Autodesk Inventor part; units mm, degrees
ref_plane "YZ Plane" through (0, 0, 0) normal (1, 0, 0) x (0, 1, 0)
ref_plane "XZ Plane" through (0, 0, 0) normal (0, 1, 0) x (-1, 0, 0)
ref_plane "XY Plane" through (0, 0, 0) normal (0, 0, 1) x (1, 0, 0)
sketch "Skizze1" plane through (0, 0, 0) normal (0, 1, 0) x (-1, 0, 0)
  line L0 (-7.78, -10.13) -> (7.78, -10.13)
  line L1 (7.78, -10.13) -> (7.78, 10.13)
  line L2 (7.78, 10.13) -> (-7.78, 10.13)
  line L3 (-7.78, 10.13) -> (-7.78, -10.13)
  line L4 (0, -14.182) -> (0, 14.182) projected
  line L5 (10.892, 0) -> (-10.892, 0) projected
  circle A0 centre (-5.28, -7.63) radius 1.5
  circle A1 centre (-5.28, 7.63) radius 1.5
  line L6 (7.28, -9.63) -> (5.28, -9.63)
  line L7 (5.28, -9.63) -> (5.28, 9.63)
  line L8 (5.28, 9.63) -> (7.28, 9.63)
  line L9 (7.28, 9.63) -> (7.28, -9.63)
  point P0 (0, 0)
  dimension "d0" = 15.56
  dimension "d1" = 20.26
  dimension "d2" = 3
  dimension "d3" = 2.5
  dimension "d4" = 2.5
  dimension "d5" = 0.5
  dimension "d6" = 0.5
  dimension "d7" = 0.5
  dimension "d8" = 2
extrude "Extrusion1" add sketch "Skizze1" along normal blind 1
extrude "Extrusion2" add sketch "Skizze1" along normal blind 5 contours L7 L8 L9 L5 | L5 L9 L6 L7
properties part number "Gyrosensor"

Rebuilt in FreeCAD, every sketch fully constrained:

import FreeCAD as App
import Part
import Sketcher
Q = App.Units.Quantity


def add_polygon(sketch, points):
    """Adds a closed chain of lines whose ends are joined by coincident constraints."""
    first, n = sketch.GeometryCount, len(points)
    for a, b in zip(points, points[1:] + points[:1]):
        sketch.addGeometry(Part.LineSegment(App.Vector(*a, 0), App.Vector(*b, 0)), False)
    for i in range(n):
        sketch.addConstraint(Sketcher.Constraint("Coincident", first + i, 2, first + (i + 1) % n, 1))

doc = App.newDocument("Part")
params = doc.addObject("Spreadsheet::Sheet", "Params")
for row, (alias, value) in enumerate([
    ("sketch1_diameter", "3 mm"),
    ("sketch1_width", "15.56 mm"),
    ("sketch1_height", "20.26 mm"),
    ("pad1_length", "1 mm"),
    ("sketch2_width", "2 mm"),
    ("sketch2_height", "19.26 mm"),
    ("pad2_length", "5 mm"),
], start=1):
    params.set(f"A{row}", alias)
    params.set(f"B{row}", "=" + value)
    params.setAlias(f"B{row}", alias)

body = doc.addObject("PartDesign::Body", "Body")

sketch1 = body.newObject("Sketcher::SketchObject", "Sketch")
sketch1.AttachmentSupport = (doc.getObject("XZ_Plane"), [""])
sketch1.MapMode = "FlatFace"
add_polygon(sketch1, [(7.78, -10.13), (-7.78, -10.13), (-7.78, 10.13), (7.78, 10.13)])
sketch1.addGeometry(Part.Circle(App.Vector(5.28, -7.63, 0), App.Vector(0, 0, 1), 1.5), False)
sketch1.addGeometry(Part.Circle(App.Vector(5.28, 7.63, 0), App.Vector(0, 0, 1), 1.5), False)
sketch1.addConstraint([
    Sketcher.Constraint("Horizontal", 0),
    Sketcher.Constraint("Vertical", 1),
    Sketcher.Constraint("Horizontal", 2),
    Sketcher.Constraint("Vertical", 3),
    Sketcher.Constraint("Equal", 4, 5),
    Sketcher.Constraint("Symmetric", 0, 2, 2, 2, -1, 1),
    Sketcher.Constraint("Symmetric", 4, 3, 5, 3, -1),
    Sketcher.Constraint("Diameter", 4, Q("3 mm")),
    Sketcher.Constraint("DistanceX", 0, 2, 0, 1, Q("15.56 mm")),
    Sketcher.Constraint("DistanceY", 1, 1, 1, 2, Q("20.26 mm")),
    Sketcher.Constraint("DistanceY", 0, 2, 4, 3, Q("2.5 mm")),
    Sketcher.Constraint("DistanceX", 5, 3, 2, 2, Q("2.5 mm")),
])
sketch1.setExpression("Constraints[11]", "Params.sketch1_diameter")
sketch1.setExpression("Constraints[12]", "Params.sketch1_width")
sketch1.setExpression("Constraints[13]", "Params.sketch1_height")
pad1 = body.newObject("PartDesign::Pad", "Pad")
pad1.Profile = sketch1
pad1.setExpression("Length", "Params.pad1_length")
pad1.Reversed = True

sketch2 = body.newObject("Sketcher::SketchObject", "Sketch001")
sketch2.AttachmentSupport = (doc.getObject("XZ_Plane"), [""])
sketch2.MapMode = "FlatFace"
add_polygon(sketch2, [(-5.28, 9.63), (-5.28, -9.63), (-7.28, -9.63), (-7.28, 9.63)])
sketch2.addConstraint([
    Sketcher.Constraint("Vertical", 0),
    Sketcher.Constraint("Horizontal", 1),
    Sketcher.Constraint("Vertical", 2),
    Sketcher.Constraint("Horizontal", 3),
    Sketcher.Constraint("DistanceX", 1, 2, 1, 1, Q("2 mm")),
    Sketcher.Constraint("DistanceY", 0, 2, 0, 1, Q("19.26 mm")),
    Sketcher.Constraint("DistanceX", 0, 2, -1, 1, Q("5.28 mm")),
    Sketcher.Constraint("DistanceY", 0, 2, -1, 1, Q("9.63 mm")),
])
sketch2.setExpression("Constraints[8]", "Params.sketch2_width")
sketch2.setExpression("Constraints[9]", "Params.sketch2_height")
pad2 = body.newObject("PartDesign::Pad", "Pad001")
pad2.Profile = sketch2
pad2.setExpression("Length", "Params.pad2_length")
pad2.Reversed = True

doc.recompute()
